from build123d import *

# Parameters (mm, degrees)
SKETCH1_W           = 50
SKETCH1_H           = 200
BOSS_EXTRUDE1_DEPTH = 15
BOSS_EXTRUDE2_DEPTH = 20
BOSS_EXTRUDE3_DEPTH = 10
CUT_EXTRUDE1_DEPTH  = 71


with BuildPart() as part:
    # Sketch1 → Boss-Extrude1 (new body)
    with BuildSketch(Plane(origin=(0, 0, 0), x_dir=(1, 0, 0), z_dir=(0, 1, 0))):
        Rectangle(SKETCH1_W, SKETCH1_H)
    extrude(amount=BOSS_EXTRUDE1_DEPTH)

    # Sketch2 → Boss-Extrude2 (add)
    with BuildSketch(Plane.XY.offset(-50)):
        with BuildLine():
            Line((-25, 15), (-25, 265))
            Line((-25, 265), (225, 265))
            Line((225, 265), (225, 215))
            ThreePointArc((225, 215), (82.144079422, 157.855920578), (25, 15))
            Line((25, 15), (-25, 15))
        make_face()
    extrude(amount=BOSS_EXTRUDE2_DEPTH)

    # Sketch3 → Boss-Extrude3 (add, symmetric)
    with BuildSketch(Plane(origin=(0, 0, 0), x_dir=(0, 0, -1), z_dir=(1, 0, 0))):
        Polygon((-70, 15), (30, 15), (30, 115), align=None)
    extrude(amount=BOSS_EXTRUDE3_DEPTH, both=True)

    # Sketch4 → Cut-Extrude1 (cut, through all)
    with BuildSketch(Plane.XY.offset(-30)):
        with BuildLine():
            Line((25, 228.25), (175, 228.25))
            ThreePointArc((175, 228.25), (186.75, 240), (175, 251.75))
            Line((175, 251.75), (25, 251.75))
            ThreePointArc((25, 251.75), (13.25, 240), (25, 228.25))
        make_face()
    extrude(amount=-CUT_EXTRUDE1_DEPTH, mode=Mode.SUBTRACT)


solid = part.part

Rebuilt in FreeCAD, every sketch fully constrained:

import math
import FreeCAD as App
import Part
import Sketcher


def add_polygon(sketch, points):
    """Adds a closed chain of lines whose ends are joined by coincident constraints."""
    first, n = sketch.GeometryCount, len(points)
    for a, b in zip(points, points[1:] + points[:1]):
        sketch.addGeometry(Part.LineSegment(App.Vector(*a, 0), App.Vector(*b, 0)), False)
    for i in range(n):
        sketch.addConstraint(Sketcher.Constraint("Coincident", first + i, 2, first + (i + 1) % n, 1))

doc = App.newDocument("Part")
body = doc.addObject("PartDesign::Body", "Body")

sketch1 = doc.addObject("Sketcher::SketchObject", "Sketch")
body.addObject(sketch1)
sketch1.AttachmentSupport = (doc.XZ_Plane, [""])
sketch1.MapMode = "FlatFace"
add_polygon(sketch1, [(-25, -100), (-25, 100), (25, 100), (25, -100)])
sketch1.addConstraint(Sketcher.Constraint("Vertical", 0))
sketch1.addConstraint(Sketcher.Constraint("Horizontal", 1))
sketch1.addConstraint(Sketcher.Constraint("Vertical", 2))
sketch1.addConstraint(Sketcher.Constraint("Horizontal", 3))
sketch1.addConstraint(Sketcher.Constraint("Symmetric", 0, 2, 2, 2, -1, 1))
sketch1.addConstraint(Sketcher.Constraint("DistanceX", 1, 1, 1, 2, 50.0))
sketch1.addConstraint(Sketcher.Constraint("DistanceY", 0, 1, 0, 2, 200.0))
pad1 = doc.addObject("PartDesign::Pad", "Pad")
body.addObject(pad1)
pad1.Profile = sketch1
pad1.Length = 15
pad1.Reversed = True

sketch2 = doc.addObject("Sketcher::SketchObject", "Sketch001")
body.addObject(sketch2)
sketch2.AttachmentSupport = (doc.XY_Plane, [""])
sketch2.MapMode = "FlatFace"
sketch2.AttachmentOffset = App.Placement(App.Vector(0, 0, -50), App.Rotation())
sketch2.addGeometry(Part.LineSegment(App.Vector(-25, 265, 0), App.Vector(-25, 15, 0)), False)
sketch2.addGeometry(Part.LineSegment(App.Vector(-25, 15, 0), App.Vector(25, 15, 0)), False)
sketch2.addGeometry(Part.ArcOfCircle(Part.Circle(App.Vector(220, 20, 0), App.Vector(0, 0, 1), 195), math.radians(89), math.radians(181)), False)
sketch2.addGeometry(Part.LineSegment(App.Vector(225, 215, 0), App.Vector(225, 265, 0)), False)
sketch2.addGeometry(Part.LineSegment(App.Vector(225, 265, 0), App.Vector(-25, 265, 0)), False)
sketch2.addConstraint(Sketcher.Constraint("Coincident", 0, 2, 1, 1))
sketch2.addConstraint(Sketcher.Constraint("Coincident", 1, 2, 2, 2))
sketch2.addConstraint(Sketcher.Constraint("Coincident", 2, 1, 3, 1))
sketch2.addConstraint(Sketcher.Constraint("Coincident", 3, 2, 4, 1))
sketch2.addConstraint(Sketcher.Constraint("Coincident", 4, 2, 0, 1))
sketch2.addConstraint(Sketcher.Constraint("Vertical", 0))
sketch2.addConstraint(Sketcher.Constraint("Horizontal", 1))
sketch2.addConstraint(Sketcher.Constraint("Vertical", 3))
sketch2.addConstraint(Sketcher.Constraint("Horizontal", 4))
sketch2.addConstraint(Sketcher.Constraint("Equal", 4, 0))
sketch2.addConstraint(Sketcher.Constraint("Equal", 1, 3))
sketch2.addConstraint(Sketcher.Constraint("Radius", 2, 195.3))
sketch2.addConstraint(Sketcher.Constraint("DistanceX", 1, 1, 1, 2, 50.0))
sketch2.addConstraint(Sketcher.Constraint("DistanceX", 4, 2, 4, 1, 250.0))
sketch2.addConstraint(Sketcher.Constraint("DistanceX", 0, 2, -1, 1, 25.0))
sketch2.addConstraint(Sketcher.Constraint("DistanceY", -1, 1, 0, 2, 15.0))
pad2 = doc.addObject("PartDesign::Pad", "Pad001")
body.addObject(pad2)
pad2.Profile = sketch2
pad2.Length = 20

sketch3 = doc.addObject("Sketcher::SketchObject", "Sketch002")
body.addObject(sketch3)
sketch3.AttachmentSupport = (doc.YZ_Plane, [""])
sketch3.MapMode = "FlatFace"
add_polygon(sketch3, [(15, 70), (15, -30), (115, -30)])
sketch3.addConstraint(Sketcher.Constraint("Vertical", 0))
sketch3.addConstraint(Sketcher.Constraint("Horizontal", 1))
sketch3.addConstraint(Sketcher.Constraint("Equal", 1, 0))
sketch3.addConstraint(Sketcher.Constraint("DistanceX", 1, 1, 1, 2, 100.0))
sketch3.addConstraint(Sketcher.Constraint("DistanceX", -1, 1, 0, 2, 15.0))
sketch3.addConstraint(Sketcher.Constraint("DistanceY", 0, 2, -1, 1, 30.0))
pad3 = doc.addObject("PartDesign::Pad", "Pad002")
body.addObject(pad3)
pad3.Profile = sketch3
pad3.Length = 20
pad3.Midplane = True

sketch4 = doc.addObject("Sketcher::SketchObject", "Sketch003")
body.addObject(sketch4)
sketch4.AttachmentSupport = (doc.XY_Plane, [""])
sketch4.MapMode = "FlatFace"
sketch4.AttachmentOffset = App.Placement(App.Vector(0, 0, -30), App.Rotation())
sketch4.addGeometry(Part.LineSegment(App.Vector(25, 228, 0), App.Vector(175, 228, 0)), False)
sketch4.addGeometry(Part.ArcOfCircle(Part.Circle(App.Vector(175, 240, 0), App.Vector(0, 0, 1), 12), math.radians(-90), math.radians(90)), False)
sketch4.addGeometry(Part.LineSegment(App.Vector(175, 252, 0), App.Vector(25, 252, 0)), False)
sketch4.addGeometry(Part.ArcOfCircle(Part.Circle(App.Vector(25, 240, 0), App.Vector(0, 0, 1), 12), math.radians(90), math.radians(270)), False)
sketch4.addConstraint(Sketcher.Constraint("Tangent", 0, 2, 1, 1))
sketch4.addConstraint(Sketcher.Constraint("Tangent", 1, 2, 2, 1))
sketch4.addConstraint(Sketcher.Constraint("Tangent", 2, 2, 3, 1))
sketch4.addConstraint(Sketcher.Constraint("Tangent", 3, 2, 0, 1))
sketch4.addConstraint(Sketcher.Constraint("Horizontal", 0))
sketch4.addConstraint(Sketcher.Constraint("Horizontal", 2))
sketch4.addConstraint(Sketcher.Constraint("DistanceX", 0, 1, 0, 2, 150.0))
sketch4.addConstraint(Sketcher.Constraint("Radius", 1, 11.75))
sketch4.addConstraint(Sketcher.Constraint("DistanceX", -1, 1, 1, 3, 175.0))
sketch4.addConstraint(Sketcher.Constraint("DistanceY", -1, 1, 1, 3, 240.0))
pocket1 = doc.addObject("PartDesign::Pocket", "Pocket")
body.addObject(pocket1)
pocket1.Profile = sketch4
pocket1.Type = "ThroughAll"

doc.recompute()
